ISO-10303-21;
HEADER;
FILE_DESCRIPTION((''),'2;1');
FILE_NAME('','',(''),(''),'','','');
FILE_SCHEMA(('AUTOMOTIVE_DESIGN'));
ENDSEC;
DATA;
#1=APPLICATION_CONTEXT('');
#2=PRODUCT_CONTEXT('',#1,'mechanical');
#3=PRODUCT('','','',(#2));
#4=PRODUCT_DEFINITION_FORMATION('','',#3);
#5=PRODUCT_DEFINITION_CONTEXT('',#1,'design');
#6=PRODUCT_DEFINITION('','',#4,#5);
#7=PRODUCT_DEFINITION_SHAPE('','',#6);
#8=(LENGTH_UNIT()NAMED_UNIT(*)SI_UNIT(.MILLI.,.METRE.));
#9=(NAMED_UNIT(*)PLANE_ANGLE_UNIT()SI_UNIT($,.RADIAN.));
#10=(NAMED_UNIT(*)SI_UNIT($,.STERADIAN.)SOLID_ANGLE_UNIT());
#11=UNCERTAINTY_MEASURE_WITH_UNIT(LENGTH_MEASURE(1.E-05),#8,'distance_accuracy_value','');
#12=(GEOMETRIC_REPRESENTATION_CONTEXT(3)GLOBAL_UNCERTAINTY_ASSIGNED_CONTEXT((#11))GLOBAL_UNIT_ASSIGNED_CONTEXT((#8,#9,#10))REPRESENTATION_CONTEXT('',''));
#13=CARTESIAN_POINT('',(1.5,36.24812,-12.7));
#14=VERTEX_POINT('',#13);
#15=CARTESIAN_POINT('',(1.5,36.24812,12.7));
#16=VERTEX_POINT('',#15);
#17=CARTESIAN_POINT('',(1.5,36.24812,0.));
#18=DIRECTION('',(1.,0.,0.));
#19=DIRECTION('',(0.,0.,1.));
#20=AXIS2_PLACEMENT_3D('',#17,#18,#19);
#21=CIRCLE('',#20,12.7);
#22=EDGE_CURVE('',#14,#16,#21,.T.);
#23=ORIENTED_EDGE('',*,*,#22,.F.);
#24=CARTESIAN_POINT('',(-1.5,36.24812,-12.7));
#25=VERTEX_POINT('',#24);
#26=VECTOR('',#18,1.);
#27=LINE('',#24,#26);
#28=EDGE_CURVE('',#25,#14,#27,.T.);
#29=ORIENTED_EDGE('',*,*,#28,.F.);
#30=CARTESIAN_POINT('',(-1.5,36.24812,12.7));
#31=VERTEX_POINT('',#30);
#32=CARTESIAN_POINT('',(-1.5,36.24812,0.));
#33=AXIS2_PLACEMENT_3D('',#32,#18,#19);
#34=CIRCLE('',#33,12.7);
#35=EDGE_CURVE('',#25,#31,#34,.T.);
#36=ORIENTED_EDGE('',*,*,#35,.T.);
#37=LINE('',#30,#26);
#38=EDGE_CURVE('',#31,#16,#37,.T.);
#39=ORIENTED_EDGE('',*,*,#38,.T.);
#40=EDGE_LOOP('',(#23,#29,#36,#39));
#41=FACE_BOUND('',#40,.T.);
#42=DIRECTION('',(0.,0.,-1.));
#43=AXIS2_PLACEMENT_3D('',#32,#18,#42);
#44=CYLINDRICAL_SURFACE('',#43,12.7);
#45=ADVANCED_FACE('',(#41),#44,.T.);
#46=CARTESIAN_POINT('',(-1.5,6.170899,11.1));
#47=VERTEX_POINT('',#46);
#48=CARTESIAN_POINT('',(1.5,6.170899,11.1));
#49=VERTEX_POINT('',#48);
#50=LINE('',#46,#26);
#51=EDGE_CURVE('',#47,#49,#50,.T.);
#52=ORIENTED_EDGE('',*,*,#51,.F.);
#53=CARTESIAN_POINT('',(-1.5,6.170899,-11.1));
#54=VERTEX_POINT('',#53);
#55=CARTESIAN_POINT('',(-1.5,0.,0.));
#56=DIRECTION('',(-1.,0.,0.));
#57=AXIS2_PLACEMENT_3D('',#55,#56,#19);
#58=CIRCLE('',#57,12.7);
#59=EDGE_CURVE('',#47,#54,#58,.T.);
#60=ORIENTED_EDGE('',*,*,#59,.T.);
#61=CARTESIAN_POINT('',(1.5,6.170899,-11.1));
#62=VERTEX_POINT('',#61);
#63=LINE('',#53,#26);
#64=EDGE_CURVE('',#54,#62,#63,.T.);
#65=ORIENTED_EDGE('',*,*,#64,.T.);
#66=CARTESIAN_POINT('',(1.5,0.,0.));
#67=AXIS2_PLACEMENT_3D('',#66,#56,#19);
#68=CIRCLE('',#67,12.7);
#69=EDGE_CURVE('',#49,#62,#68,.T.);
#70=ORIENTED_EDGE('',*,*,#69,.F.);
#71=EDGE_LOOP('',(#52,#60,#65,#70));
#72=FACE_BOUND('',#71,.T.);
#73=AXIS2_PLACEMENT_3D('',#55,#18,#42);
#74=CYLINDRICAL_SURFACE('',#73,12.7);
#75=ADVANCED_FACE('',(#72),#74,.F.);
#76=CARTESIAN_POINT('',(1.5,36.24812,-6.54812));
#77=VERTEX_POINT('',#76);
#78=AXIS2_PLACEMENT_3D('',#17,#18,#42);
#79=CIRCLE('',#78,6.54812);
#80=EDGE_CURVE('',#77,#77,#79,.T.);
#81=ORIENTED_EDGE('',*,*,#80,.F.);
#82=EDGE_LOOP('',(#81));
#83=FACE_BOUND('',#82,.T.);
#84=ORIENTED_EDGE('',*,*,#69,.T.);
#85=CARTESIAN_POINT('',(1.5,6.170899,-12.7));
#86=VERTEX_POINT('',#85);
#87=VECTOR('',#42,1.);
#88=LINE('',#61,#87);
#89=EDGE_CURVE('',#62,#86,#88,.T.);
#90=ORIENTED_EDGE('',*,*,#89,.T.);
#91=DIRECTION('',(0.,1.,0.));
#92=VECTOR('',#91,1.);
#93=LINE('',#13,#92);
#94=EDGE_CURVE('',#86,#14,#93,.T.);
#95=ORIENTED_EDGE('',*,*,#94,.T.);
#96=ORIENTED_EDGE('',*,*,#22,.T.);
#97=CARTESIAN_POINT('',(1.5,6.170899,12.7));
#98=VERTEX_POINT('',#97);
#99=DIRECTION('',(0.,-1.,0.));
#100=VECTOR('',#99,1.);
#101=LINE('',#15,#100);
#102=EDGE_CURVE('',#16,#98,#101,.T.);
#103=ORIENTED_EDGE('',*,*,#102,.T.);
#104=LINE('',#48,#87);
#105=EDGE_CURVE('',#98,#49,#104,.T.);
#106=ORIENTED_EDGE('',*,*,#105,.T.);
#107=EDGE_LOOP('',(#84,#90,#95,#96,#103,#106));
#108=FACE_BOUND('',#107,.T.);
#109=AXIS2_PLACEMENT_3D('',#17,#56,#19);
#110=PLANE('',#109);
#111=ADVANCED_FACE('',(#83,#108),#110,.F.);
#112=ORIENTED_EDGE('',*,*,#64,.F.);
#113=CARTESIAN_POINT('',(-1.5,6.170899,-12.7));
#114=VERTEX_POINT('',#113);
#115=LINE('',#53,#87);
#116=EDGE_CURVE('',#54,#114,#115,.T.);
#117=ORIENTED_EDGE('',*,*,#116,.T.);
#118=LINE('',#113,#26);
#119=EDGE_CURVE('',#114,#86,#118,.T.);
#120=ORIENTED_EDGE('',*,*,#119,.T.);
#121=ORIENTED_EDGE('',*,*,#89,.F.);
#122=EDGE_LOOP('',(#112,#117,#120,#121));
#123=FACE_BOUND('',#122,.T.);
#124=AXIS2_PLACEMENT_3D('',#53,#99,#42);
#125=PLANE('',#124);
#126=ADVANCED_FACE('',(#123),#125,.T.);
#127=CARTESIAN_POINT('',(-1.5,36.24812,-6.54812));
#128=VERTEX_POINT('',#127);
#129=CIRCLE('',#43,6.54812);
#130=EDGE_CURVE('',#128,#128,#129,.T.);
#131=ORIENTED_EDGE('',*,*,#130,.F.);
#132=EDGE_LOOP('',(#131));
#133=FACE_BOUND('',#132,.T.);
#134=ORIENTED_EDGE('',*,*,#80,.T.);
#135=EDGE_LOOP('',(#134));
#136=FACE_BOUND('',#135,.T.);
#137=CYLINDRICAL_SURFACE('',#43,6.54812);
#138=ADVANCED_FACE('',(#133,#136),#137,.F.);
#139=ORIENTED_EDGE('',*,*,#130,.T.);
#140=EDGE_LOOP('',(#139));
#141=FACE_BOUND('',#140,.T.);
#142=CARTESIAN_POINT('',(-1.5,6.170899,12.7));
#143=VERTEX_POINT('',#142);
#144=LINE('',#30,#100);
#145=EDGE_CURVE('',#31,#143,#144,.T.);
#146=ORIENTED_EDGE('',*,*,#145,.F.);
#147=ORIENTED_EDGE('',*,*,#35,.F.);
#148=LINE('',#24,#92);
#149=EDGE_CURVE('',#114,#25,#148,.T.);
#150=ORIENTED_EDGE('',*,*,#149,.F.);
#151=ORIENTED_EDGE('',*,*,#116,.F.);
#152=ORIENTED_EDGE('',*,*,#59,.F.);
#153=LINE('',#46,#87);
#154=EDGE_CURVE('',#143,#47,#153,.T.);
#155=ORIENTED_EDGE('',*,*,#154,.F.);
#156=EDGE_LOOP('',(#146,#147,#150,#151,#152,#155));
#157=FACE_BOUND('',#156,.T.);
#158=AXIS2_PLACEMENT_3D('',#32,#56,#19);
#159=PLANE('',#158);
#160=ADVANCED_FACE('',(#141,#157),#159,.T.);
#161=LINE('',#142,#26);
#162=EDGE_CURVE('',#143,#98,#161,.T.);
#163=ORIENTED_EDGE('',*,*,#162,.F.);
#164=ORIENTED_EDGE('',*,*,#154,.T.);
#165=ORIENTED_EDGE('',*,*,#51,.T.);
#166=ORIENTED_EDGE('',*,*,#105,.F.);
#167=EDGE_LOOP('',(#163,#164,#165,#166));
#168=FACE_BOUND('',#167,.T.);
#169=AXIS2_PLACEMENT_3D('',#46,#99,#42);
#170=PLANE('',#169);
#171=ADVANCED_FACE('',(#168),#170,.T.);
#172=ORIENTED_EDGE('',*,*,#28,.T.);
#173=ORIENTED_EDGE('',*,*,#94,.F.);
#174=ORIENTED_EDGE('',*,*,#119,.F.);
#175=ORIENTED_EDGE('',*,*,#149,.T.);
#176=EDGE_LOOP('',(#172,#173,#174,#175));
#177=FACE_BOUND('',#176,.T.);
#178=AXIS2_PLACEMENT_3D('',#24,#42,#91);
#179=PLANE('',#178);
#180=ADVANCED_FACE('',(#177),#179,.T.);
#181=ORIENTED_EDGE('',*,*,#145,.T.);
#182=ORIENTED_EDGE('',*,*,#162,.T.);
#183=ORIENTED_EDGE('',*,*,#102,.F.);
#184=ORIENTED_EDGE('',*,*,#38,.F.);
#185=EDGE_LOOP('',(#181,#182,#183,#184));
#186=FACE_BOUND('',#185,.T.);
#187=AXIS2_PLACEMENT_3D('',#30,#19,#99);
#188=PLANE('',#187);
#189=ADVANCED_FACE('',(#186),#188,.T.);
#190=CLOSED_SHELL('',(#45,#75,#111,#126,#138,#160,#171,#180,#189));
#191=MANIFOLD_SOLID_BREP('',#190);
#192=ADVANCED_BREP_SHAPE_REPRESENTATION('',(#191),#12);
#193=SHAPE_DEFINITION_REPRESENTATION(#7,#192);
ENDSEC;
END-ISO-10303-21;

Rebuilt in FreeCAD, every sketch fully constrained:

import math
import FreeCAD as App
import Part
import Sketcher
from FreeCAD import Vector
Q = App.Units.Quantity

doc = App.newDocument("Part")
body = doc.addObject("PartDesign::Body", "Body")

# Sketch on YZ plane
sketch1 = body.newObject("Sketcher::SketchObject", "Sketch")
sketch1.AttachmentSupport = (doc.getObject("YZ_Plane"), [""])
sketch1.MapMode = "FlatFace"
sketch1.addGeometry([
    Part.LineSegment(Vector(36.2, 12.7, 0), Vector(6.2, 12.7, 0)),  # 0
    Part.LineSegment(Vector(6.2, 12.7, 0), Vector(6.2, 11.1, 0)),  # 1
    Part.ArcOfCircle(Part.Circle(Vector(0, 0, 0), Vector(0, 0, 1), 12.7), math.radians(-61), math.radians(61)),  # 2
    Part.LineSegment(Vector(6.2, -11.1, 0), Vector(6.2, -12.7, 0)),  # 3
    Part.LineSegment(Vector(6.2, -12.7, 0), Vector(36.2, -12.7, 0)),  # 4
    Part.ArcOfCircle(Part.Circle(Vector(36.2, 0, 0), Vector(0, 0, 1), 12.7), math.radians(-90), math.radians(90)),  # 5
    Part.Circle(Vector(36.2, 0, 0), Vector(0, 0, 1), 6.5),  # 6
], False)
sketch1.addConstraint([
    Sketcher.Constraint("Coincident", 0, 2, 1, 1),
    Sketcher.Constraint("Coincident", 1, 2, 2, 2),
    Sketcher.Constraint("Coincident", 2, 1, 3, 1),
    Sketcher.Constraint("Coincident", 3, 2, 4, 1),
    Sketcher.Constraint("Tangent", 4, 2, 5, 1),
    Sketcher.Constraint("Tangent", 5, 2, 0, 1),
    Sketcher.Constraint("Horizontal", 0),
    Sketcher.Constraint("Vertical", 1),
    Sketcher.Constraint("Vertical", 3),
    Sketcher.Constraint("Horizontal", 4),
    Sketcher.Constraint("Coincident", 2, 3, -1, 1),
    Sketcher.Constraint("Coincident", 6, 3, 5, 3),
    Sketcher.Constraint("Equal", 2, 5),
    Sketcher.Constraint("Symmetric", 0, 2, 3, 2, -1),
    Sketcher.Constraint("Radius", 2, Q("12.7 mm")),
    Sketcher.Constraint("DistanceY", 1, 2, 1, 1, Q("1.6 mm")),
    Sketcher.Constraint("Diameter", 6, Q("13.09624 mm")),
    Sketcher.Constraint("DistanceX", 0, 2, 0, 1, Q("30.077221 mm")),
])
pad1 = body.newObject("PartDesign::Pad", "Pad")
pad1.Profile = sketch1
pad1.Type = "TwoLengths"
pad1.Length = 1.5
pad1.Length2 = 1.5

doc.recompute()
